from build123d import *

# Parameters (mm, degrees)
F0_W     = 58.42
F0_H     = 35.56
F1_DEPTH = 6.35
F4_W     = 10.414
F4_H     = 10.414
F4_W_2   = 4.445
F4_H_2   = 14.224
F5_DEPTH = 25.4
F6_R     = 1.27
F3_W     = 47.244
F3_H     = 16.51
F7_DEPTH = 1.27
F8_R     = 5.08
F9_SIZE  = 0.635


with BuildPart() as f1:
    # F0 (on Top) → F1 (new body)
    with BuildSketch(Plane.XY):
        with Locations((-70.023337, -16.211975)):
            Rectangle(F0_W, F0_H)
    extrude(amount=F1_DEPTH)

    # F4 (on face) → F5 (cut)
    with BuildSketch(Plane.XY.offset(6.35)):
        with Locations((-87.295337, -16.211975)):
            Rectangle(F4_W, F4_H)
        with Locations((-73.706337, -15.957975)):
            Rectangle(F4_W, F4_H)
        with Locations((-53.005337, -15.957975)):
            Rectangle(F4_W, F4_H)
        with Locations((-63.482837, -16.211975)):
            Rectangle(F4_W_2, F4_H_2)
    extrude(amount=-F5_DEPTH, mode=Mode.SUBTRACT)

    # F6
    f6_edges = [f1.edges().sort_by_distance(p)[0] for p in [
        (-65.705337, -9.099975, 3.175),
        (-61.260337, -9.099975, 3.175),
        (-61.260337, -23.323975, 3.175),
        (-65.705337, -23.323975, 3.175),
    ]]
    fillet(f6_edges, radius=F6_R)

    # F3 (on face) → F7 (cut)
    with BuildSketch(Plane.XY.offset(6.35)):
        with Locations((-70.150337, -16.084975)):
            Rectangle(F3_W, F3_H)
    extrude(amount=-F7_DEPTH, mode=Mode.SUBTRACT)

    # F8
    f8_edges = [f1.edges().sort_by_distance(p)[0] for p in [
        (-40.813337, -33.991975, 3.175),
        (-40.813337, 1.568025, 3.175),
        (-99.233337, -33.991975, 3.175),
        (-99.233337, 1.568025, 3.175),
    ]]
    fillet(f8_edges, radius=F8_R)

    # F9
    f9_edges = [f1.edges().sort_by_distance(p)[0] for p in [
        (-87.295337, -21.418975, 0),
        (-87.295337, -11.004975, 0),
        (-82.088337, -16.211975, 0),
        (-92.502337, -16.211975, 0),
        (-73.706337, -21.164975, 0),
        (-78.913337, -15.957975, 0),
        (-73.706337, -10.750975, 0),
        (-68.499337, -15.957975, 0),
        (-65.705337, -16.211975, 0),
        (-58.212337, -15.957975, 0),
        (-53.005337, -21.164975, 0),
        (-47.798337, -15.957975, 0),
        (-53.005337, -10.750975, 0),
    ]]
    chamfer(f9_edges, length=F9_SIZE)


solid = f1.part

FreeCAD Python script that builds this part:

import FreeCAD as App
import Part
import Sketcher
from FreeCAD import Vector
Q = App.Units.Quantity


def edges_at(feature, points):
    """Names of the edges that pass closest to the given points."""
    edges = feature.Shape.Edges
    near = lambda p: min(range(len(edges)), key=lambda i: edges[i].distToShape(Part.Vertex(*p))[0])
    return sorted({f"Edge{near(p) + 1}" for p in points})

doc = App.newDocument("Part")
body = doc.addObject("PartDesign::Body", "Body")

sketch1 = body.newObject("Sketcher::SketchObject", "Sketch")
sketch1.AttachmentSupport = (doc.getObject("XY_Plane"), [""])
sketch1.MapMode = "FlatFace"
sketch1.addGeometry([
    Part.LineSegment(Vector(-99, 2, 0), Vector(-99, -34, 0)),
    Part.LineSegment(Vector(-99, -34, 0), Vector(-41, -34, 0)),
    Part.LineSegment(Vector(-41, -34, 0), Vector(-41, 2, 0)),
    Part.LineSegment(Vector(-41, 2, 0), Vector(-99, 2, 0)),
], False)
sketch1.addConstraint([
    Sketcher.Constraint("Coincident", 0, 2, 1, 1),
    Sketcher.Constraint("Coincident", 1, 2, 2, 1),
    Sketcher.Constraint("Coincident", 2, 2, 3, 1),
    Sketcher.Constraint("Coincident", 3, 2, 0, 1),
    Sketcher.Constraint("Vertical", 0),
    Sketcher.Constraint("Horizontal", 1),
    Sketcher.Constraint("Vertical", 2),
    Sketcher.Constraint("Horizontal", 3),
    Sketcher.Constraint("DistanceX", 1, 1, 1, 2, Q("2.3 in")),
    Sketcher.Constraint("DistanceY", 0, 2, 0, 1, Q("1.4 in")),
    Sketcher.Constraint("DistanceX", 0, 2, -1, 1, 99.233337),
    Sketcher.Constraint("DistanceY", 0, 2, -1, 1, 33.991975),
])
pad1 = body.newObject("PartDesign::Pad", "Pad")
pad1.Profile = sketch1
pad1.Length = Q("0.25 in")

sketch2 = body.newObject("Sketcher::SketchObject", "Sketch001")
sketch2.AttachmentSupport = (doc.getObject("XY_Plane"), [""])
sketch2.MapMode = "FlatFace"
sketch2.AttachmentOffset = App.Placement(Vector(0, 0, 0.25 * 25.4), App.Rotation())
sketch2.addGeometry([
    Part.LineSegment(Vector(-92.5, -11, 0), Vector(-92.5, -21.4, 0)),
    Part.LineSegment(Vector(-92.5, -21.4, 0), Vector(-82.1, -21.4, 0)),
    Part.LineSegment(Vector(-82.1, -21.4, 0), Vector(-82.1, -11, 0)),
    Part.LineSegment(Vector(-82.1, -11, 0), Vector(-92.5, -11, 0)),
    Part.LineSegment(Vector(-78.9, -10.8, 0), Vector(-78.9, -21.2, 0)),
    Part.LineSegment(Vector(-78.9, -21.2, 0), Vector(-68.5, -21.2, 0)),
    Part.LineSegment(Vector(-68.5, -21.2, 0), Vector(-68.5, -10.8, 0)),
    Part.LineSegment(Vector(-68.5, -10.8, 0), Vector(-78.9, -10.8, 0)),
    Part.LineSegment(Vector(-58.2, -10.8, 0), Vector(-58.2, -21.2, 0)),
    Part.LineSegment(Vector(-58.2, -21.2, 0), Vector(-47.8, -21.2, 0)),
    Part.LineSegment(Vector(-47.8, -21.2, 0), Vector(-47.8, -10.8, 0)),
    Part.LineSegment(Vector(-47.8, -10.8, 0), Vector(-58.2, -10.8, 0)),
    Part.LineSegment(Vector(-65.7, -9.1, 0), Vector(-65.7, -23.3, 0)),
    Part.LineSegment(Vector(-65.7, -23.3, 0), Vector(-61.3, -23.3, 0)),
    Part.LineSegment(Vector(-61.3, -23.3, 0), Vector(-61.3, -9.1, 0)),
    Part.LineSegment(Vector(-61.3, -9.1, 0), Vector(-65.7, -9.1, 0)),
], False)
sketch2.addConstraint([
    Sketcher.Constraint("Coincident", 0, 2, 1, 1),
    Sketcher.Constraint("Coincident", 1, 2, 2, 1),
    Sketcher.Constraint("Coincident", 2, 2, 3, 1),
    Sketcher.Constraint("Coincident", 3, 2, 0, 1),
    Sketcher.Constraint("Coincident", 4, 2, 5, 1),
    Sketcher.Constraint("Coincident", 5, 2, 6, 1),
    Sketcher.Constraint("Coincident", 6, 2, 7, 1),
    Sketcher.Constraint("Coincident", 7, 2, 4, 1),
    Sketcher.Constraint("Coincident", 8, 2, 9, 1),
    Sketcher.Constraint("Coincident", 9, 2, 10, 1),
    Sketcher.Constraint("Coincident", 10, 2, 11, 1),
    Sketcher.Constraint("Coincident", 11, 2, 8, 1),
    Sketcher.Constraint("Coincident", 12, 2, 13, 1),
    Sketcher.Constraint("Coincident", 13, 2, 14, 1),
    Sketcher.Constraint("Coincident", 14, 2, 15, 1),
    Sketcher.Constraint("Coincident", 15, 2, 12, 1),
    Sketcher.Constraint("Vertical", 0),
    Sketcher.Constraint("Horizontal", 1),
    Sketcher.Constraint("Vertical", 2),
    Sketcher.Constraint("Horizontal", 3),
    Sketcher.Constraint("Vertical", 4),
    Sketcher.Constraint("Horizontal", 5),
    Sketcher.Constraint("Vertical", 6),
    Sketcher.Constraint("Horizontal", 7),
    Sketcher.Constraint("Vertical", 8),
    Sketcher.Constraint("Horizontal", 9),
    Sketcher.Constraint("Vertical", 10),
    Sketcher.Constraint("Horizontal", 11),
    Sketcher.Constraint("Vertical", 12),
    Sketcher.Constraint("Horizontal", 13),
    Sketcher.Constraint("Vertical", 14),
    Sketcher.Constraint("Horizontal", 15),
    Sketcher.Constraint("Horizontal", 5, 2, 8, 2),
    Sketcher.Constraint("Horizontal", 7, 2, 10, 2),
    Sketcher.Constraint("Equal", 3, 5),
    Sketcher.Constraint("Equal", 7, 9),
    Sketcher.Constraint("Equal", 11, 0),
    Sketcher.Constraint("Equal", 2, 4),
    Sketcher.Constraint("DistanceX", 1, 1, 1, 2, Q("0.41 in")),
    Sketcher.Constraint("DistanceY", 12, 2, 12, 1, Q("0.56 in")),
    Sketcher.Constraint("DistanceY", 4, 2, 2, 2, Q("0.4 in")),
    Sketcher.Constraint("DistanceX", 13, 1, 13, 2, Q("0.175 in")),
    Sketcher.Constraint("DistanceX", 1, 2, 8, 2, Q("0.94 in")),
    Sketcher.Constraint("DistanceX", 5, 2, 12, 2, Q("0.11 in")),
    Sketcher.Constraint("DistanceX", 13, 2, 8, 2, Q("0.12 in")),
    Sketcher.Constraint("DistanceY", 12, 2, 5, 2, Q("0.085 in")),
    Sketcher.Constraint("DistanceX", 0, 2, -1, 1, 92.502337),
    Sketcher.Constraint("DistanceY", 0, 2, -1, 1, 21.418975),
])
pocket1 = body.newObject("PartDesign::Pocket", "Pocket")
pocket1.Profile = sketch2
pocket1.Length = Q("1 in")
doc.recompute()

fillet = body.newObject("PartDesign::Fillet", "Fillet")
fillet.Base = (pocket1, edges_at(pocket1, [
    (-65.705, -9.1, 3.175),
    (-61.26, -9.1, 3.175),
    (-61.26, -23.324, 3.175),
    (-65.705, -23.324, 3.175),
]))
fillet.Radius = Q("0.05 in")

sketch3 = body.newObject("Sketcher::SketchObject", "Sketch002")
sketch3.AttachmentSupport = (doc.getObject("XY_Plane"), [""])
sketch3.MapMode = "FlatFace"
sketch3.AttachmentOffset = App.Placement(Vector(0, 0, 0.25 * 25.4), App.Rotation())
sketch3.addGeometry([
    Part.LineSegment(Vector(-94, -8, 0), Vector(-94, -24, 0)),
    Part.LineSegment(Vector(-94, -24, 0), Vector(-47, -24, 0)),
    Part.LineSegment(Vector(-47, -24, 0), Vector(-47, -8, 0)),
    Part.LineSegment(Vector(-47, -8, 0), Vector(-94, -8, 0)),
], False)
sketch3.addConstraint([
    Sketcher.Constraint("Coincident", 0, 2, 1, 1),
    Sketcher.Constraint("Coincident", 1, 2, 2, 1),
    Sketcher.Constraint("Coincident", 2, 2, 3, 1),
    Sketcher.Constraint("Coincident", 3, 2, 0, 1),
    Sketcher.Constraint("Vertical", 0),
    Sketcher.Constraint("Horizontal", 1),
    Sketcher.Constraint("Vertical", 2),
    Sketcher.Constraint("Horizontal", 3),
    Sketcher.Constraint("DistanceX", 1, 1, 1, 2, Q("1.86 in")),
    Sketcher.Constraint("DistanceY", 0, 2, 0, 1, Q("0.65 in")),
    Sketcher.Constraint("DistanceX", 0, 2, -1, 1, 93.772337),
    Sketcher.Constraint("DistanceY", 0, 2, -1, 1, 24.339975),
])
pocket2 = body.newObject("PartDesign::Pocket", "Pocket001")
pocket2.Profile = sketch3
pocket2.Length = Q("0.05 in")
doc.recompute()

fillet2 = body.newObject("PartDesign::Fillet", "Fillet001")
fillet2.Base = (pocket2, edges_at(pocket2, [
    (-40.813, -33.992, 3.175),
    (-40.813, 1.568, 3.175),
    (-99.233, -33.992, 3.175),
    (-99.233, 1.568, 3.175),
]))
fillet2.Radius = Q("0.2 in")
doc.recompute()

chamfer = body.newObject("PartDesign::Chamfer", "Chamfer")
chamfer.Base = (fillet2, edges_at(fillet2, [
    (-87.295, -21.419, 0),
    (-87.295, -11.005, 0),
    (-82.088, -16.212, 0),
    (-92.502, -16.212, 0),
    (-73.706, -21.165, 0),
    (-78.913, -15.958, 0),
    (-73.706, -10.751, 0),
    (-68.499, -15.958, 0),
    (-65.705, -16.212, 0),
    (-58.212, -15.958, 0),
    (-53.005, -21.165, 0),
    (-47.798, -15.958, 0),
    (-53.005, -10.751, 0),
]))
chamfer.Size = Q("0.025 in")

doc.recompute()
